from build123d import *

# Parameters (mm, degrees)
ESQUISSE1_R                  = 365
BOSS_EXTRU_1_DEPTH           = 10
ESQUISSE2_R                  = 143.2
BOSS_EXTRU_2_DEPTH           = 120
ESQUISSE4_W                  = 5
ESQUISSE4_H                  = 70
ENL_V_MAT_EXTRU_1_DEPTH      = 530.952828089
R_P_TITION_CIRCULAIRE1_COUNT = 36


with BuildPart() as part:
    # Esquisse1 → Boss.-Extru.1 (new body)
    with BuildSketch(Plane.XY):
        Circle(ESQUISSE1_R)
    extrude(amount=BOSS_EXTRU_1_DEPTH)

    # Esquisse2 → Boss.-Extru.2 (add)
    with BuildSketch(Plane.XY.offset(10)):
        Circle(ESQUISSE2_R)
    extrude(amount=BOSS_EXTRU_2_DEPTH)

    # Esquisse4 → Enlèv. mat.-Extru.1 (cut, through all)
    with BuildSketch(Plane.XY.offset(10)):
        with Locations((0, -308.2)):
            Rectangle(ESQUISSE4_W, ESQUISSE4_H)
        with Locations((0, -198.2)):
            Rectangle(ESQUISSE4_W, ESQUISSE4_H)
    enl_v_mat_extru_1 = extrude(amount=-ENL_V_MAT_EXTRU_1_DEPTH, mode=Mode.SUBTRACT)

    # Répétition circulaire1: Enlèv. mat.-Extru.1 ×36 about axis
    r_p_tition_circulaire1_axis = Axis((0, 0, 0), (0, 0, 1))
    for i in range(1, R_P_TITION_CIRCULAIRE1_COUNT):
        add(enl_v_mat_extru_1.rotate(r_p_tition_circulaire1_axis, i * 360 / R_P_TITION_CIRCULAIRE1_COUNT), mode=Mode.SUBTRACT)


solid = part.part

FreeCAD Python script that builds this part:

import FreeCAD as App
import Part
import Sketcher

V = App.Vector

doc = App.newDocument("Part")
body = doc.addObject("PartDesign::Body", "Body")

sketch1 = body.newObject("Sketcher::SketchObject", "Sketch")
sketch1.AttachmentSupport = (doc.getObject("XY_Plane"), [""])
sketch1.MapMode = "FlatFace"
sketch1.addGeometry(Part.Circle(V(0, 0, 0), V(0, 0, 1), 365), False)
sketch1.addConstraint([
    Sketcher.Constraint("Coincident", 0, 3, -1, 1),
    Sketcher.Constraint("Diameter", 0, 730.0),
])
pad1 = body.newObject("PartDesign::Pad", "Pad")
pad1.Profile = sketch1
pad1.Length = 10

sketch2 = body.newObject("Sketcher::SketchObject", "Sketch001")
sketch2.AttachmentSupport = (doc.getObject("XY_Plane"), [""])
sketch2.MapMode = "FlatFace"
sketch2.AttachmentOffset = App.Placement(V(0, 0, 10), App.Rotation())
sketch2.addGeometry(Part.Circle(V(0, 0, 0), V(0, 0, 1), 143), False)
sketch2.addConstraint([
    Sketcher.Constraint("Coincident", 0, 3, -1, 1),
    Sketcher.Constraint("Diameter", 0, 286.4),
])
pad2 = body.newObject("PartDesign::Pad", "Pad001")
pad2.Profile = sketch2
pad2.Length = 120

sketch3 = body.newObject("Sketcher::SketchObject", "Sketch002")
sketch3.AttachmentSupport = (doc.getObject("XY_Plane"), [""])
sketch3.MapMode = "FlatFace"
sketch3.AttachmentOffset = App.Placement(V(0, 0, 10), App.Rotation())
sketch3.addGeometry([
    Part.LineSegment(V(-2, -273, 0), V(-2, -343, 0)),
    Part.LineSegment(V(-2, -343, 0), V(2, -343, 0)),
    Part.LineSegment(V(2, -343, 0), V(2, -273, 0)),
    Part.LineSegment(V(2, -273, 0), V(-2, -273, 0)),
    Part.LineSegment(V(-2, -163, 0), V(-2, -233, 0)),
    Part.LineSegment(V(-2, -233, 0), V(2, -233, 0)),
    Part.LineSegment(V(2, -233, 0), V(2, -163, 0)),
    Part.LineSegment(V(2, -163, 0), V(-2, -163, 0)),
], False)
sketch3.addConstraint([
    Sketcher.Constraint("Coincident", 0, 2, 1, 1),
    Sketcher.Constraint("Coincident", 1, 2, 2, 1),
    Sketcher.Constraint("Coincident", 2, 2, 3, 1),
    Sketcher.Constraint("Coincident", 3, 2, 0, 1),
    Sketcher.Constraint("Coincident", 4, 2, 5, 1),
    Sketcher.Constraint("Coincident", 5, 2, 6, 1),
    Sketcher.Constraint("Coincident", 6, 2, 7, 1),
    Sketcher.Constraint("Coincident", 7, 2, 4, 1),
    Sketcher.Constraint("Vertical", 0),
    Sketcher.Constraint("Horizontal", 1),
    Sketcher.Constraint("Vertical", 2),
    Sketcher.Constraint("Horizontal", 3),
    Sketcher.Constraint("Vertical", 4),
    Sketcher.Constraint("Horizontal", 5),
    Sketcher.Constraint("Vertical", 6),
    Sketcher.Constraint("Horizontal", 7),
    Sketcher.Constraint("Vertical", 3, 2, 4, 2),
    Sketcher.Constraint("Vertical", 2, 2, 5, 2),
    Sketcher.Constraint("Equal", 2, 4),
    Sketcher.Constraint("DistanceX", 1, 1, 1, 2, 5.0),
    Sketcher.Constraint("DistanceY", 0, 2, 0, 1, 70.0),
    Sketcher.Constraint("DistanceY", 3, 2, 4, 2, 40.0),
    Sketcher.Constraint("DistanceX", 0, 2, -1, 1, 2.5),
    Sketcher.Constraint("DistanceY", 0, 2, -1, 1, 343.2),
])
pocket1 = body.newObject("PartDesign::Pocket", "Pocket")
pocket1.Profile = sketch3
pocket1.Type = "ThroughAll"
doc.recompute()

polarpattern = body.newObject("PartDesign::PolarPattern", "PolarPattern")
polarpattern.Originals = [pocket1]
polarpattern.Axis = (doc.getObject("Z_Axis"), [""])
polarpattern.Angle = 360
polarpattern.Occurrences = 36
body.Tip = polarpattern

doc.recompute()
